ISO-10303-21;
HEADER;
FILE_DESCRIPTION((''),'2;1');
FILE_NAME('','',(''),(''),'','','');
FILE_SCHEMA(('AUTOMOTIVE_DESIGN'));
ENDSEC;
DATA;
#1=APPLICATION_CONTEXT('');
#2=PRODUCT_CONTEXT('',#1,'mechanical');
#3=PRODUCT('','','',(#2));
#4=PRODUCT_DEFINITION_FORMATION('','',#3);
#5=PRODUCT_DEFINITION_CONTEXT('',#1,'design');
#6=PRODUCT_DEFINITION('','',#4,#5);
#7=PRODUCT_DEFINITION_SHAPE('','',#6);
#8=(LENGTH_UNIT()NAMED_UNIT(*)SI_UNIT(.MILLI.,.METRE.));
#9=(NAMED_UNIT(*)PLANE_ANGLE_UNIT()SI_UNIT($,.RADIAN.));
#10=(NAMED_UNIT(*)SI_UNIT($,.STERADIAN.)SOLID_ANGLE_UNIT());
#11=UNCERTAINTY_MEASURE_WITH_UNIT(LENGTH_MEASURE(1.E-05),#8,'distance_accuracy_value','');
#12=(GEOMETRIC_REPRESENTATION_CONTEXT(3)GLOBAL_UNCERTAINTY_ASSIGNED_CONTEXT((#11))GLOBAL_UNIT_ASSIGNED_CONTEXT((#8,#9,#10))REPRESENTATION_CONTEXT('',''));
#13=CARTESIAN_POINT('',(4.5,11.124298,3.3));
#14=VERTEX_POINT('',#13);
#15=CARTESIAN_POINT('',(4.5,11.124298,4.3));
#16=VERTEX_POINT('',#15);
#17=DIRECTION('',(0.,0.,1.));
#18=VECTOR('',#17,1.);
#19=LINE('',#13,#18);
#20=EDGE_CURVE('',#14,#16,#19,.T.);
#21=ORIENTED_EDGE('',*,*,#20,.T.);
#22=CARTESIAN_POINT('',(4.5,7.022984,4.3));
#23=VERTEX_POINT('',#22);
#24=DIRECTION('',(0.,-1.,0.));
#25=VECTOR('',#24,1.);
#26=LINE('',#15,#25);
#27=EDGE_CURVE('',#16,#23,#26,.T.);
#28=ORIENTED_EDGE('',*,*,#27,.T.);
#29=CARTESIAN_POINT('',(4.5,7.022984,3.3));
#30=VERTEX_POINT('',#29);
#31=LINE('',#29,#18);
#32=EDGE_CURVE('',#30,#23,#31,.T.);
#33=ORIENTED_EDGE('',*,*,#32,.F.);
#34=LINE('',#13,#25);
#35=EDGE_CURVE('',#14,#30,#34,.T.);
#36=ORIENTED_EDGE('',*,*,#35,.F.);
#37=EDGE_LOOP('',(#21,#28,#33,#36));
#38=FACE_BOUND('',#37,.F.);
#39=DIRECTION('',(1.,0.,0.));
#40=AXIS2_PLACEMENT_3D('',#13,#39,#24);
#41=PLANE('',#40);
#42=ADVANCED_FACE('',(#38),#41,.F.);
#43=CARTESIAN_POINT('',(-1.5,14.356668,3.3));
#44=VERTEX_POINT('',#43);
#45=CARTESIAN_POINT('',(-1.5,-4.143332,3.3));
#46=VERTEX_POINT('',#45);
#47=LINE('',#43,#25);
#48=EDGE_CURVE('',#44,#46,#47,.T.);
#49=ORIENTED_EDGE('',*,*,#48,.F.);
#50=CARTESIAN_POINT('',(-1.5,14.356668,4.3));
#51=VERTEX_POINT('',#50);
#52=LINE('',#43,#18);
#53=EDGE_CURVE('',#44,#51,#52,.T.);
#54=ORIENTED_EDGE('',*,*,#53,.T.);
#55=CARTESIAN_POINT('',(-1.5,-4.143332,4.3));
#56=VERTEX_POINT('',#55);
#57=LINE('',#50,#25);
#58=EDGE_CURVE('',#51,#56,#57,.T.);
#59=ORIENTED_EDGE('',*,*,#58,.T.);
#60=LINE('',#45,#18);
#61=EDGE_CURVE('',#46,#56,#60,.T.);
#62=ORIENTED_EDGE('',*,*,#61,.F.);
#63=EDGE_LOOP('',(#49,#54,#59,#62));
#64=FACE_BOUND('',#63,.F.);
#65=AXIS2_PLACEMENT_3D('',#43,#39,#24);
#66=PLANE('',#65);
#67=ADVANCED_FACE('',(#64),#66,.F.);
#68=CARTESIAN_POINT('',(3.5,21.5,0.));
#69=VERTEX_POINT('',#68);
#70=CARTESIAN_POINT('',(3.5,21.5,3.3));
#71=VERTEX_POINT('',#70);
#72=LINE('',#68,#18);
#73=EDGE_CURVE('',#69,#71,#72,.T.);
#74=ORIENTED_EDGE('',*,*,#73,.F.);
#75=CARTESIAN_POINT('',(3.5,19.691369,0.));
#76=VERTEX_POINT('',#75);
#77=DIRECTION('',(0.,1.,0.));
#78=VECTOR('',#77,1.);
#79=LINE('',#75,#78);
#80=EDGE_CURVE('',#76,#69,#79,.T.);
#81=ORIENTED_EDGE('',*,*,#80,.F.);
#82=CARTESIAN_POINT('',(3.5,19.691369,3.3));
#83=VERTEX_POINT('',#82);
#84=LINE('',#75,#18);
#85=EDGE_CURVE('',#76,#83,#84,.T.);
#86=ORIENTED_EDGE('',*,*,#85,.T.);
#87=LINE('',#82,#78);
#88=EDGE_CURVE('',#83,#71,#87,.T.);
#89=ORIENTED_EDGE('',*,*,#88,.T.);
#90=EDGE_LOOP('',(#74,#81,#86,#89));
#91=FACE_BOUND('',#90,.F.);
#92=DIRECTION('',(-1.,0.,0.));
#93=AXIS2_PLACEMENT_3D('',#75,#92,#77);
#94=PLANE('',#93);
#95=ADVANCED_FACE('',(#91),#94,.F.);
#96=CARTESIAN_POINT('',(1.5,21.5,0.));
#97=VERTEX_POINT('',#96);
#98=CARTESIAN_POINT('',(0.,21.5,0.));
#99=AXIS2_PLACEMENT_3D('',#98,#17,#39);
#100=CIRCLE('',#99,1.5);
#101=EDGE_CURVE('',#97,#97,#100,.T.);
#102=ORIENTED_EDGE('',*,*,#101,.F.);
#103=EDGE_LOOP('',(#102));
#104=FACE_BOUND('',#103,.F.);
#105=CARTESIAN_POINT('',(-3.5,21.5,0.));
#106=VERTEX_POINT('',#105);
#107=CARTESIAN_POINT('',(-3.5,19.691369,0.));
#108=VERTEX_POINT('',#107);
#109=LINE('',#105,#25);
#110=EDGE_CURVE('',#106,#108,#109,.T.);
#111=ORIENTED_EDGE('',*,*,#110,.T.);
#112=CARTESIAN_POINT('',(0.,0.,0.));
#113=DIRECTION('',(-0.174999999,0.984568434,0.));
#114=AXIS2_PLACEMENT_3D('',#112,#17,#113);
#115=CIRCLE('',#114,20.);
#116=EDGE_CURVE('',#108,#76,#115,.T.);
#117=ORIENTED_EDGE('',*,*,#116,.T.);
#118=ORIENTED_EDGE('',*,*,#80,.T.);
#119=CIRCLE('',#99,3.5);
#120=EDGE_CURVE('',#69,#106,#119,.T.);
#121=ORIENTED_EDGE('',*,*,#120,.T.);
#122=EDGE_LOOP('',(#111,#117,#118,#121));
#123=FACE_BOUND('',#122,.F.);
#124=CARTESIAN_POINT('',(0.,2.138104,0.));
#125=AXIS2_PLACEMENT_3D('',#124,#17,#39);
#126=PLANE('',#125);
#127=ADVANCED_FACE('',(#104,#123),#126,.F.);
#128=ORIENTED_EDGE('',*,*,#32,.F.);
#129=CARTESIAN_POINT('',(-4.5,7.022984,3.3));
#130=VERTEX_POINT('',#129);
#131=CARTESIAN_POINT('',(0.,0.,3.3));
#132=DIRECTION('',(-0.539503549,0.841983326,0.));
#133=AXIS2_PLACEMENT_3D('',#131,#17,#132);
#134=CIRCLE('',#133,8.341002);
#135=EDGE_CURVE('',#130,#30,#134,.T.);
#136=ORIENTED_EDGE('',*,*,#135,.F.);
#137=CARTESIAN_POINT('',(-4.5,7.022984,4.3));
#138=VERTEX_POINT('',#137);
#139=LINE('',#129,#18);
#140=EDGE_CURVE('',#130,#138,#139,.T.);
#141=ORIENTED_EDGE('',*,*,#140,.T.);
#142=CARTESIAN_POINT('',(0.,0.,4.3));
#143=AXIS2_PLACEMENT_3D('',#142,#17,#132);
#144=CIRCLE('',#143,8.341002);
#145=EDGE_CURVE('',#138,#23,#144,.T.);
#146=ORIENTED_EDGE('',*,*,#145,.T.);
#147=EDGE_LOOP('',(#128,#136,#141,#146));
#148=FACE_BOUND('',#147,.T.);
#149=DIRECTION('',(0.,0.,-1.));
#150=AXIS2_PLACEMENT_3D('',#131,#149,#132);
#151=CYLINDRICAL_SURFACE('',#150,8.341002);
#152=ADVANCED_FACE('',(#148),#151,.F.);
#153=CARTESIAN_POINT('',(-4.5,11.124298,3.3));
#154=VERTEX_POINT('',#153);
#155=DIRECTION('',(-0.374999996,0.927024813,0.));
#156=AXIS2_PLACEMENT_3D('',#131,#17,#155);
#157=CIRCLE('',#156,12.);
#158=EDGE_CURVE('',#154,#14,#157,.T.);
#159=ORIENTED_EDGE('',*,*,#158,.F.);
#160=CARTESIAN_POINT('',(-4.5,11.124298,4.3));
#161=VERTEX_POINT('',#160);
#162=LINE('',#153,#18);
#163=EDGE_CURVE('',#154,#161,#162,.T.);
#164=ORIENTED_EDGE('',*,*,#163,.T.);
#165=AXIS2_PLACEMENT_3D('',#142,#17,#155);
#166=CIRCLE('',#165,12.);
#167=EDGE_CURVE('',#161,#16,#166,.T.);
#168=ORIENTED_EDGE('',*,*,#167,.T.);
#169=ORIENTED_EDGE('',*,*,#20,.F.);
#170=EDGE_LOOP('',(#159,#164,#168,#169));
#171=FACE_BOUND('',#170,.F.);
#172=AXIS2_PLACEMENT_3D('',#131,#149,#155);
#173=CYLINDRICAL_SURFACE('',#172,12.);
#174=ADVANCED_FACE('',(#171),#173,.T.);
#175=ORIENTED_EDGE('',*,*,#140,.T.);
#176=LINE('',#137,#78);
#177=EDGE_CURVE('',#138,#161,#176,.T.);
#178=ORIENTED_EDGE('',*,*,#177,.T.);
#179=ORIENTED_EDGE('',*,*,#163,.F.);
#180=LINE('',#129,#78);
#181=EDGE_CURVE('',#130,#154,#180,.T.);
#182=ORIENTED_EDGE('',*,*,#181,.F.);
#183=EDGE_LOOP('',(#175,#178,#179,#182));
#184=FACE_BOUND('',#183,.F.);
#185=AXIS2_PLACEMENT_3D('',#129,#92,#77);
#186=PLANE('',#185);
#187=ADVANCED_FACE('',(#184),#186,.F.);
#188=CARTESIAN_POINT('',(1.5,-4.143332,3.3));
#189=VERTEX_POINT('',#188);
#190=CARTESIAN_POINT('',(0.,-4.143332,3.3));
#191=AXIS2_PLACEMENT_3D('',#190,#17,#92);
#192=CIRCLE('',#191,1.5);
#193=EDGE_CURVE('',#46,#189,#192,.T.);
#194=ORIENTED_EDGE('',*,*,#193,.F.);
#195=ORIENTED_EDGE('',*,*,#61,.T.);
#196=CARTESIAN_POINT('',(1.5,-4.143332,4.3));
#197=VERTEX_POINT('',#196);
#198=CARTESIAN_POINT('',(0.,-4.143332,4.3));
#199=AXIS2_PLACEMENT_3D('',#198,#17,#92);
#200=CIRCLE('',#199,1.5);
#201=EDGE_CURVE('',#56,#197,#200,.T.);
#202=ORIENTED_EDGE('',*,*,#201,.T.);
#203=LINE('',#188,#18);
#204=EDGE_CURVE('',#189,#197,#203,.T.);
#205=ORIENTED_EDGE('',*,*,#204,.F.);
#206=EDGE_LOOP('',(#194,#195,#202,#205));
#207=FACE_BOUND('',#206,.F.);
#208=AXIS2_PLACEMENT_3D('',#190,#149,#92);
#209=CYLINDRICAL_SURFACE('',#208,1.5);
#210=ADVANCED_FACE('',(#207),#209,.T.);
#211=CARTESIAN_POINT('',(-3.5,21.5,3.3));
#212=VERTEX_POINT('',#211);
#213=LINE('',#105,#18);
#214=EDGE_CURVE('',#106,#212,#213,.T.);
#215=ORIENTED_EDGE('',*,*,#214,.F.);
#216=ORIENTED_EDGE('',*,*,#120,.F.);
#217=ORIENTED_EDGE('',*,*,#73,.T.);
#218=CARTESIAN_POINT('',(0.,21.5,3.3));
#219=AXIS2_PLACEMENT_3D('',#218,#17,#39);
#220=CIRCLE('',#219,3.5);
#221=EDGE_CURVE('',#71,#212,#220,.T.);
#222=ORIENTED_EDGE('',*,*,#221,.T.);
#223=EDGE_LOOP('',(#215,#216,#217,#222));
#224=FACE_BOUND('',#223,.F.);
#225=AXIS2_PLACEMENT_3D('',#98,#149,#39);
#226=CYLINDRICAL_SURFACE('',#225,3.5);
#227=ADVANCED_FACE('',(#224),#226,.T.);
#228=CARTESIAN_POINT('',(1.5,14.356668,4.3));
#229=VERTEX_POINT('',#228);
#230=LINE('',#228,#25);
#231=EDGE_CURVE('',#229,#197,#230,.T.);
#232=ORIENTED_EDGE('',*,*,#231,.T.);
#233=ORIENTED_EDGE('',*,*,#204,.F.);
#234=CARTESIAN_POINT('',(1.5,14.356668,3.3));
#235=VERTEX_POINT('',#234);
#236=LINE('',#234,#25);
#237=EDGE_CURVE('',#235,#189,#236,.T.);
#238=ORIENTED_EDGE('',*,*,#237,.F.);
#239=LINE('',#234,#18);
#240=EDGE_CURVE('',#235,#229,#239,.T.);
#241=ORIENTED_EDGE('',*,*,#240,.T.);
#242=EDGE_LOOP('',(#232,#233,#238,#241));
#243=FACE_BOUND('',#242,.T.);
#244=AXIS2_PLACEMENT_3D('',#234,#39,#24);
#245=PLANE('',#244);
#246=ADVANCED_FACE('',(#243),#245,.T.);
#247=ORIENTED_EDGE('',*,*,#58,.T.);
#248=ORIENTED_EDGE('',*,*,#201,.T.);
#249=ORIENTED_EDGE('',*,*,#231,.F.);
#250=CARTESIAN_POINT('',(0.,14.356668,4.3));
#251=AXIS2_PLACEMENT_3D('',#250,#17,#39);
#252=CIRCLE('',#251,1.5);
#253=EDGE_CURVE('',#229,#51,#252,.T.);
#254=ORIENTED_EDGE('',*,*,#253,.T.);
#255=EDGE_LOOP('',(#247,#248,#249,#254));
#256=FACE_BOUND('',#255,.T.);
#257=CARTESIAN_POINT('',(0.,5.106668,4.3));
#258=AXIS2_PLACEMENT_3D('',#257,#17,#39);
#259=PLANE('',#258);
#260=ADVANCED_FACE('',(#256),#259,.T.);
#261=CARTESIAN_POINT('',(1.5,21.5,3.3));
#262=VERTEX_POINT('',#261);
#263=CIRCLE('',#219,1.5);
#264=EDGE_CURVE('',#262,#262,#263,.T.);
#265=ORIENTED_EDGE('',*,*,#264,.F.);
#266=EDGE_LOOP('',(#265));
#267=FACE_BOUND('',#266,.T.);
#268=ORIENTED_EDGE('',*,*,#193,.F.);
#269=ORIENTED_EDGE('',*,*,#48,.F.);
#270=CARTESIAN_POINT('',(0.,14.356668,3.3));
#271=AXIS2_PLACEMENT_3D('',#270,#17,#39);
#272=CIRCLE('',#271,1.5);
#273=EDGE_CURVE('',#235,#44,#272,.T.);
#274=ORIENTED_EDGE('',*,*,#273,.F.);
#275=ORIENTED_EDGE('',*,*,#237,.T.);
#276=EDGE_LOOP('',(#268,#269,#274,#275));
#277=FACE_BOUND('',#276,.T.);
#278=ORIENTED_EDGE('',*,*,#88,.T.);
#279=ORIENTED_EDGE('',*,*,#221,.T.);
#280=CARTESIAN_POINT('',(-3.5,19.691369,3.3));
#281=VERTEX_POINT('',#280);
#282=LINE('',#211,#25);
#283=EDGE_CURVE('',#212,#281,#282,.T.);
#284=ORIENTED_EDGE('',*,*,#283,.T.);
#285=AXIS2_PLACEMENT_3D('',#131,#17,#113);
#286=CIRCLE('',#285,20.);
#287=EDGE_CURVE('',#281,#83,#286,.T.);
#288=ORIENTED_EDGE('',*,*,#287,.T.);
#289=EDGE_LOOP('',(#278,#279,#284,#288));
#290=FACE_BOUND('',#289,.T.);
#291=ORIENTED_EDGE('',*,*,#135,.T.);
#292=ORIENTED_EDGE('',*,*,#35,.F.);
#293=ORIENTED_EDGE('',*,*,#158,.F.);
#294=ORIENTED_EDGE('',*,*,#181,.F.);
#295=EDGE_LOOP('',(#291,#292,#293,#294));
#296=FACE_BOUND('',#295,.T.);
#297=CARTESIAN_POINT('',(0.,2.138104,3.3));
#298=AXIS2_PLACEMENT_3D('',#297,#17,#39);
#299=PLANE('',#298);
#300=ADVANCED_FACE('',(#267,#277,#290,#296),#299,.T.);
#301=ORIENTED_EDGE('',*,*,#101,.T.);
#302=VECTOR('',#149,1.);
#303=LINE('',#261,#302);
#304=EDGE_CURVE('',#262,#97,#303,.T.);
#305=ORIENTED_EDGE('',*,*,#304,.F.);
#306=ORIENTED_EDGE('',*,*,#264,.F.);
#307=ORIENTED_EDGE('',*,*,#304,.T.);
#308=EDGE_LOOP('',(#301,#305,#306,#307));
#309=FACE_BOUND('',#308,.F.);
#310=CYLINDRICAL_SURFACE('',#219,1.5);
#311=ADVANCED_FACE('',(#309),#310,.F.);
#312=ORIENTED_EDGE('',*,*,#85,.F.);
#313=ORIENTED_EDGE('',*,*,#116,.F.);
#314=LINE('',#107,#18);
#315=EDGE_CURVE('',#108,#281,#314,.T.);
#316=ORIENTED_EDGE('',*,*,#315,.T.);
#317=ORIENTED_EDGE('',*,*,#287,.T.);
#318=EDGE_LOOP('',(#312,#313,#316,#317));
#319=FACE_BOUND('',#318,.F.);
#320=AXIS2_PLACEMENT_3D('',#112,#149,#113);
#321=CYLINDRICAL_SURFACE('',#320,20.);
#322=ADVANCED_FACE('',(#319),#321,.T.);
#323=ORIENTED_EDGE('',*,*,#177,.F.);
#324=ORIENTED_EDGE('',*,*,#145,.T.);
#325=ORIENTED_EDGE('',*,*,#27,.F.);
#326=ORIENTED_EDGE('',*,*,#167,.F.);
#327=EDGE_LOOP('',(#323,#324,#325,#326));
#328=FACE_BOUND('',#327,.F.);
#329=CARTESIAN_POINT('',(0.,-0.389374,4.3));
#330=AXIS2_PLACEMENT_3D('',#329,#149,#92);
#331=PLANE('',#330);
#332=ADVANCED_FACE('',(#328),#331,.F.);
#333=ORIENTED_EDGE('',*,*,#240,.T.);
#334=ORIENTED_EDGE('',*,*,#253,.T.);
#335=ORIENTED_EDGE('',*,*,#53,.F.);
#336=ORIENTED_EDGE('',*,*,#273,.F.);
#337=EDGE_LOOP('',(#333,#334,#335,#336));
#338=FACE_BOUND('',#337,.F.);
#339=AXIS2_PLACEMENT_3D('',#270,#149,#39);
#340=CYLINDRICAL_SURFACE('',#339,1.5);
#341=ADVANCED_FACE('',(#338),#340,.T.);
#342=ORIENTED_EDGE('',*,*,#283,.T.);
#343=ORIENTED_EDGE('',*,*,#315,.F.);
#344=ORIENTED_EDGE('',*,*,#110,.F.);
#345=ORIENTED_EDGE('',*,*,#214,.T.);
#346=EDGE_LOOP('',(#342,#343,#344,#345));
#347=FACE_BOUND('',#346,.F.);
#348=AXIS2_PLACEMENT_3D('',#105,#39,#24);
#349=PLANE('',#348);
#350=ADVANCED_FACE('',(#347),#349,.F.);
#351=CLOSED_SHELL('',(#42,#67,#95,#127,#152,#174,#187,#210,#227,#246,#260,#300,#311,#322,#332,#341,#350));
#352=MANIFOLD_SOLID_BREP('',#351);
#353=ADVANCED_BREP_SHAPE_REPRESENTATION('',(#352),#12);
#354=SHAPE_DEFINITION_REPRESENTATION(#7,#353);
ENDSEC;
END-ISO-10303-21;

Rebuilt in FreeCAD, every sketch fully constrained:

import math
import FreeCAD as App
import Part
import Sketcher

V = App.Vector

doc = App.newDocument("Part")
body = doc.addObject("PartDesign::Body", "Body")

# Sketch on XY plane
sketch1 = body.newObject("Sketcher::SketchObject", "Sketch")
sketch1.AttachmentSupport = (doc.getObject("XY_Plane"), [""])
sketch1.MapMode = "FlatFace"
sketch1.addGeometry([
    Part.ArcOfCircle(Part.Circle(V(0, 21.5, 0), V(0, 0, 1), 3.5), math.radians(0), math.radians(180)),
    Part.LineSegment(V(-3.5, 21.5, 0), V(-3.5, 19.7, 0)),
    Part.ArcOfCircle(Part.Circle(V(0, 0, 0), V(0, 0, 1), 20), math.radians(100), math.radians(440)),
    Part.LineSegment(V(3.5, 19.7, 0), V(3.5, 21.5, 0)),
], False)
sketch1.addConstraint([
    Sketcher.Constraint("Tangent", 0, 2, 1, 1),
    Sketcher.Constraint("Coincident", 1, 2, 2, 1),
    Sketcher.Constraint("Coincident", 2, 2, 3, 1),
    Sketcher.Constraint("Tangent", 3, 2, 0, 1),
    Sketcher.Constraint("Vertical", 1),
    Sketcher.Constraint("Vertical", 3),
    Sketcher.Constraint("Coincident", 2, 3, -1, 1),
    Sketcher.Constraint("PointOnObject", 0, 3, -2),
    Sketcher.Constraint("Radius", 2, 20.0),
    Sketcher.Constraint("Radius", 0, 3.5),
    Sketcher.Constraint("DistanceY", -1, 1, 0, 3, 21.5),
])
pad1 = body.newObject("PartDesign::Pad", "Pad")
pad1.Profile = sketch1
pad1.Length = 3.3

# Sketch on XY plane
sketch2 = body.newObject("Sketcher::SketchObject", "Sketch001")
sketch2.AttachmentSupport = (doc.getObject("XY_Plane"), [""])
sketch2.MapMode = "FlatFace"
sketch2.AttachmentOffset = App.Placement(V(0, 0, 3.3), App.Rotation())
sketch2.addGeometry(Part.Circle(V(0, 21.5, 0), V(0, 0, 1), 1.5), False)
sketch2.addConstraint([
    Sketcher.Constraint("PointOnObject", 0, 3, -2),
    Sketcher.Constraint("Diameter", 0, 3.0),
    Sketcher.Constraint("DistanceY", -1, 1, 0, 3, 21.5),
])
pocket1 = body.newObject("PartDesign::Pocket", "Pocket")
pocket1.Profile = sketch2
pocket1.Type = "ThroughAll"

# Sketch on XY plane
sketch3 = body.newObject("Sketcher::SketchObject", "Sketch002")
sketch3.AttachmentSupport = (doc.getObject("XY_Plane"), [""])
sketch3.MapMode = "FlatFace"
sketch3.AttachmentOffset = App.Placement(V(0, 0, 3.3), App.Rotation())
sketch3.addGeometry([
    Part.ArcOfCircle(Part.Circle(V(0, 0, 0), V(0, 0, 1), 8.3), math.radians(123), math.radians(417)),  # 0
    Part.LineSegment(V(-4.5, 7, 0), V(-4.5, 11.1, 0)),  # 1
    Part.ArcOfCircle(Part.Circle(V(0, 0, 0), V(0, 0, 1), 12), math.radians(112), math.radians(428)),  # 2
    Part.LineSegment(V(4.5, 11.1, 0), V(4.5, 7, 0)),  # 3
    Part.ArcOfCircle(Part.Circle(V(0, 14.4, 0), V(0, 0, 1), 1.5), math.radians(0), math.radians(180)),  # 4
    Part.LineSegment(V(-1.5, 14.4, 0), V(-1.5, -4.1, 0)),  # 5
    Part.ArcOfCircle(Part.Circle(V(0, -4.1, 0), V(0, 0, 1), 1.5), math.radians(180), math.radians(360)),  # 6
    Part.LineSegment(V(1.5, -4.1, 0), V(1.5, 14.4, 0)),  # 7
], False)
sketch3.addConstraint([
    Sketcher.Constraint("Coincident", 0, 1, 1, 1),
    Sketcher.Constraint("Coincident", 1, 2, 2, 1),
    Sketcher.Constraint("Coincident", 2, 2, 3, 1),
    Sketcher.Constraint("Coincident", 3, 2, 0, 2),
    Sketcher.Constraint("Tangent", 4, 2, 5, 1),
    Sketcher.Constraint("Tangent", 5, 2, 6, 1),
    Sketcher.Constraint("Tangent", 6, 2, 7, 1),
    Sketcher.Constraint("Tangent", 7, 2, 4, 1),
    Sketcher.Constraint("Vertical", 1),
    Sketcher.Constraint("Vertical", 3),
    Sketcher.Constraint("Vertical", 5),
    Sketcher.Constraint("Vertical", 7),
    Sketcher.Constraint("Coincident", 0, 3, -1, 1),
    Sketcher.Constraint("Coincident", 2, 3, -1, 1),
    Sketcher.Constraint("PointOnObject", 4, 3, -2),
    Sketcher.Constraint("Horizontal", 1, 2, 2, 2),
    Sketcher.Constraint("Radius", 2, 12.0),
    Sketcher.Constraint("Radius", 4, 1.5),
    Sketcher.Constraint("DistanceY", 5, 2, 5, 1, 18.5),
    Sketcher.Constraint("Radius", 0, 8.341002),
    Sketcher.Constraint("DistanceX", 1, 2, 2, 2, 9.0),
    Sketcher.Constraint("DistanceY", -1, 1, 4, 3, 14.356668),
])
pad2 = body.newObject("PartDesign::Pad", "Pad001")
pad2.Profile = sketch3
pad2.Length = 1

doc.recompute()
